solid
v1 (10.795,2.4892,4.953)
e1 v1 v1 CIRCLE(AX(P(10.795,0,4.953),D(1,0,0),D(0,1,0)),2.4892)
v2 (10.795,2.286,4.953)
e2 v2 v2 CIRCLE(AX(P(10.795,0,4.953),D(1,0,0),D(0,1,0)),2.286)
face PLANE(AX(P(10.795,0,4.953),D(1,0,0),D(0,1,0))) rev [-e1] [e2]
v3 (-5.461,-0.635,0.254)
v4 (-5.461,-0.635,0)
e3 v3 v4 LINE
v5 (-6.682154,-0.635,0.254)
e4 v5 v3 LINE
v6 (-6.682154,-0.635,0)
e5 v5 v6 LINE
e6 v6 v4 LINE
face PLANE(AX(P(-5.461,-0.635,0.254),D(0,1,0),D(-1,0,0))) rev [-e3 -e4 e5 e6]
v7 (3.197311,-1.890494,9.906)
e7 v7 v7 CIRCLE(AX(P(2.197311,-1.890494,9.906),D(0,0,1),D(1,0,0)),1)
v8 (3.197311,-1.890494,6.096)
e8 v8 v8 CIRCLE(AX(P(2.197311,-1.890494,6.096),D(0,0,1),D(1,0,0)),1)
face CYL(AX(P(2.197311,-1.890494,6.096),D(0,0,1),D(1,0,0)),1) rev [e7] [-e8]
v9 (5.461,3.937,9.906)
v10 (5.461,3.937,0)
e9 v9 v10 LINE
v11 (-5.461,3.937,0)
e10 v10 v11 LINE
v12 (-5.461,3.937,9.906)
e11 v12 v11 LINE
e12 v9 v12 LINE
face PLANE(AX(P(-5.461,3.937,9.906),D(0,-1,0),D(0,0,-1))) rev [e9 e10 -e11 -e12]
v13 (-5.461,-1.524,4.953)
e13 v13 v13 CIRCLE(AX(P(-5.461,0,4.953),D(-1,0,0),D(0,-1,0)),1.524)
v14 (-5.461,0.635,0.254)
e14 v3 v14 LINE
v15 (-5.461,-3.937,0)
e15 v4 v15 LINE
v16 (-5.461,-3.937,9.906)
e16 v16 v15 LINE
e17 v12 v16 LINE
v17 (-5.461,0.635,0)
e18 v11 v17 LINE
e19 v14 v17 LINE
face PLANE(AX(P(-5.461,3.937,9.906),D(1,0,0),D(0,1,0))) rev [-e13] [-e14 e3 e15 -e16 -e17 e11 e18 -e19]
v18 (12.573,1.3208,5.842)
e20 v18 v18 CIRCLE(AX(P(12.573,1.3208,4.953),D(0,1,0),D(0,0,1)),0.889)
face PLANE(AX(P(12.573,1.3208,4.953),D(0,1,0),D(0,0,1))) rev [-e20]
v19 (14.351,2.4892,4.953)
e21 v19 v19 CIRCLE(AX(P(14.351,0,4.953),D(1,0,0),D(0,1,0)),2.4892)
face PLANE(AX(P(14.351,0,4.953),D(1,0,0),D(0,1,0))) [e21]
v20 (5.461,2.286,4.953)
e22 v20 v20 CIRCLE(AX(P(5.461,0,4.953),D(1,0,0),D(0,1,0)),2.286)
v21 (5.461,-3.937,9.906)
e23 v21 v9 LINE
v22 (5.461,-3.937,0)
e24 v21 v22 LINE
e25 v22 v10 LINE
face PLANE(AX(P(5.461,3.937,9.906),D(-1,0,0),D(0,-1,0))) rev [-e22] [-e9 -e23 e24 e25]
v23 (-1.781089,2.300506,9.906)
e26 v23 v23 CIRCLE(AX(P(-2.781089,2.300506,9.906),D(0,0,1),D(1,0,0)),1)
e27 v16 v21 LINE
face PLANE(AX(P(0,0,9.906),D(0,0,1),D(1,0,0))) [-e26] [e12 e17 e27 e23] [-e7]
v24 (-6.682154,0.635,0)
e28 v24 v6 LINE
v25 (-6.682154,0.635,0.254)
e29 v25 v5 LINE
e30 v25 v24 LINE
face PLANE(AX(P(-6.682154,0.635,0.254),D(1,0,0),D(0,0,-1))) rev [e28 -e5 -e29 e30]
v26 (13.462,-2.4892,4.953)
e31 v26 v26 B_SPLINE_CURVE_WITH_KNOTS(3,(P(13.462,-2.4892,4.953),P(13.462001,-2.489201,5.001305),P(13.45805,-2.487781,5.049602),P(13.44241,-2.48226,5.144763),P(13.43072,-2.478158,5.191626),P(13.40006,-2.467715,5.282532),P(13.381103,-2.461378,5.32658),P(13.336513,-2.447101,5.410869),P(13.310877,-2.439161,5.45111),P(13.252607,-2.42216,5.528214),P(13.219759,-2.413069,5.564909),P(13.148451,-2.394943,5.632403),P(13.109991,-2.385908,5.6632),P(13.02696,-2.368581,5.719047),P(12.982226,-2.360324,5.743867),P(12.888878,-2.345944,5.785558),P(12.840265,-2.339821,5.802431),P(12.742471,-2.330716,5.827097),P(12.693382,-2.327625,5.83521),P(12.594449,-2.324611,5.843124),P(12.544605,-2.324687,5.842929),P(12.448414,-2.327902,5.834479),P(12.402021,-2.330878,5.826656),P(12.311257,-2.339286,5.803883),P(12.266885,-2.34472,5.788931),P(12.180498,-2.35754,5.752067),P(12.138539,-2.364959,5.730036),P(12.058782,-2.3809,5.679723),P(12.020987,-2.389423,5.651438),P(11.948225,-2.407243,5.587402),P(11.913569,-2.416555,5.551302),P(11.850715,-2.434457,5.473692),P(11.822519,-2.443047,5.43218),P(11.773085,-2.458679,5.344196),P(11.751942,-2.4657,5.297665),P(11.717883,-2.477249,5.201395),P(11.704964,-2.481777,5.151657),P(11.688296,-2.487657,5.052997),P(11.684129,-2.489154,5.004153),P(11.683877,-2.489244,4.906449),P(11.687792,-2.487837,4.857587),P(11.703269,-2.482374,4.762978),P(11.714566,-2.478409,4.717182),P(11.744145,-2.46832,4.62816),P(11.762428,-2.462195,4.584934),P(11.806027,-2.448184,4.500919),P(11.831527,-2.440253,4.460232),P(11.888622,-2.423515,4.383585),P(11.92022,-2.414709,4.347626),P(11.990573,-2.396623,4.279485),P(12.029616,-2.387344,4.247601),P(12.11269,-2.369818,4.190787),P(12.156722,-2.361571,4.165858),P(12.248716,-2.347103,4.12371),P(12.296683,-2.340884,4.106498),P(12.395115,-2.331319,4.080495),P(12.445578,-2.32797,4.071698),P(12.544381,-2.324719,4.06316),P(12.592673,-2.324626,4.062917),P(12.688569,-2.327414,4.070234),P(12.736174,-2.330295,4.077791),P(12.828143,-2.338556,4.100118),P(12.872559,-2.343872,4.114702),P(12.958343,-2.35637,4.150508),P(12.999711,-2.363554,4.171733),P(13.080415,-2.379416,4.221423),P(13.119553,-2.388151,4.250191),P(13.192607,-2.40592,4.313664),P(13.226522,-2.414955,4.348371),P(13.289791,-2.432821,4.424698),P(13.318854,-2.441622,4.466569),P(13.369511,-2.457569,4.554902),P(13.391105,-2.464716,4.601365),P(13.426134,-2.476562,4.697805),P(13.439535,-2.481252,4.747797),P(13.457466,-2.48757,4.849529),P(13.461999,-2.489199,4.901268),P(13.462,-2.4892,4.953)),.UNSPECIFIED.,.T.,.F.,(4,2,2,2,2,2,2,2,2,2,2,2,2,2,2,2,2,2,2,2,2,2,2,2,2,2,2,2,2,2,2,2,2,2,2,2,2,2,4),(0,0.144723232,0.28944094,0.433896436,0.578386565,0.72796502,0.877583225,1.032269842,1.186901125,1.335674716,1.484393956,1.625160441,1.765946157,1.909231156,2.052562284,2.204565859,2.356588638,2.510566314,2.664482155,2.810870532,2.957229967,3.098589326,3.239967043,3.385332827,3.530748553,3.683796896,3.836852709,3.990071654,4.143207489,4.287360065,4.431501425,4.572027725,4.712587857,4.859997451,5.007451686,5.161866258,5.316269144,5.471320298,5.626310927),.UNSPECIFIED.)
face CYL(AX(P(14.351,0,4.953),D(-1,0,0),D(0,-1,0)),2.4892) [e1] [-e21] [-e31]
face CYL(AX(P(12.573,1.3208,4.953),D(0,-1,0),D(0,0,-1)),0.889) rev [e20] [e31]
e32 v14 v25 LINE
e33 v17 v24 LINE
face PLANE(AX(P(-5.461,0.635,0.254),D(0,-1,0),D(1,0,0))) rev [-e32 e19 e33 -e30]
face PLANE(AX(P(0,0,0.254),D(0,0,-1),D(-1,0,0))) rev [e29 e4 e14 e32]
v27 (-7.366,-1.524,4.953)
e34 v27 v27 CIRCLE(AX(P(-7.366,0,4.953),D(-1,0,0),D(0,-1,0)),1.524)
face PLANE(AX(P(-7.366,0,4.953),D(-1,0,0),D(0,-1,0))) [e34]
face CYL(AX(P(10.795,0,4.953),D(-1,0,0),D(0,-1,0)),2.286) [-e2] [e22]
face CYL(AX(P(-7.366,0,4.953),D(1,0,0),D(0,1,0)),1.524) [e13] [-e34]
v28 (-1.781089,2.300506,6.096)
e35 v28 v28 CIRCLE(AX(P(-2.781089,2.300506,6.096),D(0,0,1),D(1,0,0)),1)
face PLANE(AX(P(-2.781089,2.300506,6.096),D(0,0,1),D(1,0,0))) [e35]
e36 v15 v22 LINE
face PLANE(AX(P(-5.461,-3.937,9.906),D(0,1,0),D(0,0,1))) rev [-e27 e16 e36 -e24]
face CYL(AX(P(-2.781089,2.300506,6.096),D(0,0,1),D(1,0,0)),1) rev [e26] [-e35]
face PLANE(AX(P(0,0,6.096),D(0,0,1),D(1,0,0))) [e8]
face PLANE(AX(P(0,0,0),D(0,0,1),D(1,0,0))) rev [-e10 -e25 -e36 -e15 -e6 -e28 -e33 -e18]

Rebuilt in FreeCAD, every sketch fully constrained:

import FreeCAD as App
import Part
import Sketcher
from FreeCAD import Vector
Q = App.Units.Quantity


def add_polygon(sketch, points):
    """Adds a closed chain of lines whose ends are joined by coincident constraints."""
    first, n = sketch.GeometryCount, len(points)
    for a, b in zip(points, points[1:] + points[:1]):
        sketch.addGeometry(Part.LineSegment(App.Vector(*a, 0), App.Vector(*b, 0)), False)
    for i in range(n):
        sketch.addConstraint(Sketcher.Constraint("Coincident", first + i, 2, first + (i + 1) % n, 1))

doc = App.newDocument("Part")
body = doc.addObject("PartDesign::Body", "Body")

# Sketch on XY plane
sketch1 = body.newObject("Sketcher::SketchObject", "Sketch")
sketch1.AttachmentSupport = (doc.getObject("XY_Plane"), [""])
sketch1.MapMode = "FlatFace"
add_polygon(sketch1, [(-5, 4), (-5, -4), (5, -4), (5, 4)])  # lines 0-3
sketch1.addConstraint([
    Sketcher.Constraint("Vertical", 0),
    Sketcher.Constraint("Horizontal", 1),
    Sketcher.Constraint("Vertical", 2),
    Sketcher.Constraint("Horizontal", 3),
    Sketcher.Constraint("Symmetric", 0, 2, 2, 2, -1, 1),
    Sketcher.Constraint("DistanceX", 1, 1, 1, 2, Q("0.43 in")),
    Sketcher.Constraint("DistanceY", 0, 2, 0, 1, Q("0.31 in")),
])
pad1 = body.newObject("PartDesign::Pad", "Pad")
pad1.Profile = sketch1
pad1.Length = Q("0.39 in")

# Sketch on YZ plane
sketch2 = body.newObject("Sketcher::SketchObject", "Sketch001")
sketch2.AttachmentSupport = (doc.getObject("YZ_Plane"), [""])
sketch2.MapMode = "FlatFace"
sketch2.AttachmentOffset = App.Placement(Vector(0, 0, 0.215 * 25.4), App.Rotation())
sketch2.addGeometry(Part.Circle(Vector(0, 5, 0), Vector(0, 0, 1), 2.3), False)
sketch2.addConstraint([
    Sketcher.Constraint("PointOnObject", 0, 3, -2),
    Sketcher.Constraint("Diameter", 0, Q("0.18 in")),
    Sketcher.Constraint("DistanceY", -1, 1, 0, 3, Q("0.195 in")),
])
pad2 = body.newObject("PartDesign::Pad", "Pad001")
pad2.Profile = sketch2
pad2.Length = Q("0.21 in")

# Sketch on YZ plane
sketch3 = body.newObject("Sketcher::SketchObject", "Sketch002")
sketch3.AttachmentSupport = (doc.getObject("YZ_Plane"), [""])
sketch3.MapMode = "FlatFace"
sketch3.AttachmentOffset = App.Placement(Vector(0, 0, 0.425 * 25.4), App.Rotation())
sketch3.addGeometry(Part.Circle(Vector(0, 5, 0), Vector(0, 0, 1), 2.5), False)
sketch3.addConstraint([
    Sketcher.Constraint("PointOnObject", 0, 3, -2),
    Sketcher.Constraint("Diameter", 0, Q("0.196 in")),
    Sketcher.Constraint("DistanceY", -1, 1, 0, 3, Q("0.195 in")),
])
pad3 = body.newObject("PartDesign::Pad", "Pad002")
pad3.Profile = sketch3
pad3.Length = Q("0.14 in")

# Sketch on YZ plane
sketch4 = body.newObject("Sketcher::SketchObject", "Sketch003")
sketch4.AttachmentSupport = (doc.getObject("YZ_Plane"), [""])
sketch4.MapMode = "FlatFace"
sketch4.AttachmentOffset = App.Placement(Vector(0, 0, -0.215 * 25.4), App.Rotation())
sketch4.addGeometry(Part.Circle(Vector(0, 5, 0), Vector(0, 0, 1), 1.5), False)
sketch4.addConstraint([
    Sketcher.Constraint("PointOnObject", 0, 3, -2),
    Sketcher.Constraint("Diameter", 0, Q("0.12 in")),
    Sketcher.Constraint("DistanceY", -1, 1, 0, 3, Q("0.195 in")),
])
pad4 = body.newObject("PartDesign::Pad", "Pad003")
pad4.Profile = sketch4
pad4.Length = Q("0.075 in")
pad4.Reversed = True

# Sketch on XY plane
sketch5 = body.newObject("Sketcher::SketchObject", "Sketch004")
sketch5.AttachmentSupport = (doc.getObject("XY_Plane"), [""])
sketch5.MapMode = "FlatFace"
sketch5.AttachmentOffset = App.Placement(Vector(0, 0, 0.39 * 25.4), App.Rotation())
sketch5.addGeometry([
    Part.Circle(Vector(2.2, -1.9, 0), Vector(0, 0, 1), 1),
    Part.Circle(Vector(-2.8, 2.3, 0), Vector(0, 0, 1), 1),
], False)
sketch5.addConstraint([
    Sketcher.Constraint("Equal", 0, 1),
    Sketcher.Constraint("Diameter", 0, 2.0),
    Sketcher.Constraint("DistanceX", 1, 3, 0, 3, Q("0.196 in")),
    Sketcher.Constraint("DistanceY", 0, 3, 1, 3, Q("0.165 in")),
    Sketcher.Constraint("DistanceX", -1, 1, 0, 3, 2.197311),
    Sketcher.Constraint("DistanceY", 0, 3, -1, 1, 1.890494),
])
pocket1 = body.newObject("PartDesign::Pocket", "Pocket")
pocket1.Profile = sketch5
pocket1.Length = Q("0.15 in")

# Sketch on XZ plane
sketch6 = body.newObject("Sketcher::SketchObject", "Sketch005")
sketch6.AttachmentSupport = (doc.getObject("XZ_Plane"), [""])
sketch6.MapMode = "FlatFace"
sketch6.AttachmentOffset = App.Placement(Vector(0, 0, 0.098 * 25.4), App.Rotation())
sketch6.addGeometry(Part.Circle(Vector(12.6, 5, 0), Vector(0, 0, 1), 0.9), False)
sketch6.addConstraint([
    Sketcher.Constraint("Diameter", 0, Q("0.07 in")),
    Sketcher.Constraint("DistanceX", -1, 1, 0, 3, Q("0.495 in")),
    Sketcher.Constraint("DistanceY", -1, 1, 0, 3, Q("0.195 in")),
])
pocket2 = body.newObject("PartDesign::Pocket", "Pocket001")
pocket2.Profile = sketch6
pocket2.Length = Q("0.15 in")

# Sketch on XY plane
sketch7 = body.newObject("Sketcher::SketchObject", "Sketch006")
sketch7.AttachmentSupport = (doc.getObject("XY_Plane"), [""])
sketch7.MapMode = "FlatFace"
add_polygon(sketch7, [(-6.7, 0.6), (-6.7, -0.6), (-5.5, -0.6), (-5.5, 0.6)])  # lines 0-3
sketch7.addConstraint([
    Sketcher.Constraint("Vertical", 0),
    Sketcher.Constraint("Horizontal", 1),
    Sketcher.Constraint("Vertical", 2),
    Sketcher.Constraint("Horizontal", 3),
    Sketcher.Constraint("DistanceY", 0, 2, 0, 1, Q("0.05 in")),
    Sketcher.Constraint("DistanceY", 0, 2, -1, 1, Q("0.025 in")),
    Sketcher.Constraint("DistanceX", 1, 2, -1, 1, Q("0.215 in")),
    Sketcher.Constraint("DistanceX", 1, 1, 1, 2, 1.221154),
])
pad5 = body.newObject("PartDesign::Pad", "Pad004")
pad5.Profile = sketch7
pad5.Length = Q("0.01 in")

doc.recompute()
